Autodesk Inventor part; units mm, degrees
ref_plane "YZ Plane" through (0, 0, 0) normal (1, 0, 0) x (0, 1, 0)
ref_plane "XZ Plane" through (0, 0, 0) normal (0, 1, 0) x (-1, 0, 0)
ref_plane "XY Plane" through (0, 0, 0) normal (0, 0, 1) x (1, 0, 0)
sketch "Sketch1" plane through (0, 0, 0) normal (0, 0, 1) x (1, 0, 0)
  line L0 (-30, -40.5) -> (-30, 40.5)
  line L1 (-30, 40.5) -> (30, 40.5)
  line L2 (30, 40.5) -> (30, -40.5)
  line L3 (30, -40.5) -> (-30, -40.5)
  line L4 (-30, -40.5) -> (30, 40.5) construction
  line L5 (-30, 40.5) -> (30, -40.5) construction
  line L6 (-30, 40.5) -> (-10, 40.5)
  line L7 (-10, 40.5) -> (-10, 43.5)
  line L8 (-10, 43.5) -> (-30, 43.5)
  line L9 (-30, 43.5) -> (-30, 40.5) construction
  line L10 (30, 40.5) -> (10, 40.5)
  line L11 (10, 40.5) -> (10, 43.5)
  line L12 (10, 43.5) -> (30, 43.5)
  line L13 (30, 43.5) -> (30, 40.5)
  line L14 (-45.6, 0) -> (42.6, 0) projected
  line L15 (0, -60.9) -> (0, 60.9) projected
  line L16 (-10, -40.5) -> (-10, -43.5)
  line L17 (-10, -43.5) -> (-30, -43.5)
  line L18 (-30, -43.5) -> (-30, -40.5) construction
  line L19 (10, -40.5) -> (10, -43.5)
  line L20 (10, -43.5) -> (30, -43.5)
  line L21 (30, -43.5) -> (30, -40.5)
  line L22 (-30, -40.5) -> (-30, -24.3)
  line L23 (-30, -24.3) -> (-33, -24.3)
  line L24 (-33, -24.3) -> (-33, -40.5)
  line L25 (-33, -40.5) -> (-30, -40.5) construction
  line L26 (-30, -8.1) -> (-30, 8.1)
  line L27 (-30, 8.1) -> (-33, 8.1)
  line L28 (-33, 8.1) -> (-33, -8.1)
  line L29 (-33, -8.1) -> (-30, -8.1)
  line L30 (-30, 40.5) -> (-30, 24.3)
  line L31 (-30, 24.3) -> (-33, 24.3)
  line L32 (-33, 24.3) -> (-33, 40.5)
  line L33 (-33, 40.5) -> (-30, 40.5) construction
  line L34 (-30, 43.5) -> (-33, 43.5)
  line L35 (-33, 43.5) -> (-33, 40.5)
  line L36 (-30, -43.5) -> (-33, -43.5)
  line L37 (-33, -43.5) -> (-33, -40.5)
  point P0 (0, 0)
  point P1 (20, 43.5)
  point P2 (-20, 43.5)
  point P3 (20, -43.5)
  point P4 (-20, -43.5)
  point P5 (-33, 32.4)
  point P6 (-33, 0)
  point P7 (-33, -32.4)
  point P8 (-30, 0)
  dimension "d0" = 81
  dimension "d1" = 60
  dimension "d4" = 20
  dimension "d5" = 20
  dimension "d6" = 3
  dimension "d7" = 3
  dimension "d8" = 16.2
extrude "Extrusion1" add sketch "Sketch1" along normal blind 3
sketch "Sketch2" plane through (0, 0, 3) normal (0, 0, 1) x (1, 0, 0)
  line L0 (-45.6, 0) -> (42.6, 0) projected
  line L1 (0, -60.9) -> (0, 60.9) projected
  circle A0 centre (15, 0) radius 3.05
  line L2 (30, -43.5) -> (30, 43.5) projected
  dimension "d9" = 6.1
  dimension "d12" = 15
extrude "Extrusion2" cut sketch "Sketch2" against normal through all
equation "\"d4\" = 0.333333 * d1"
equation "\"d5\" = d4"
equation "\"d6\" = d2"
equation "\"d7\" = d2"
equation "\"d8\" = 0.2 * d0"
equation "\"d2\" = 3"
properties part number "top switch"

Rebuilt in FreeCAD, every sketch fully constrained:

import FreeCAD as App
import Part
import Sketcher

V = App.Vector


def add_polygon(sketch, points):
    """Adds a closed chain of lines whose ends are joined by coincident constraints."""
    first, n = sketch.GeometryCount, len(points)
    for a, b in zip(points, points[1:] + points[:1]):
        sketch.addGeometry(Part.LineSegment(App.Vector(*a, 0), App.Vector(*b, 0)), False)
    for i in range(n):
        sketch.addConstraint(Sketcher.Constraint("Coincident", first + i, 2, first + (i + 1) % n, 1))

doc = App.newDocument("Part")
body = doc.addObject("PartDesign::Body", "Body")

sketch1 = doc.addObject("Sketcher::SketchObject", "Sketch")
body.addObject(sketch1)
sketch1.AttachmentSupport = (doc.XY_Plane, [""])
sketch1.MapMode = "FlatFace"
add_polygon(sketch1, [(-10, -43.5), (-10, -40.5), (10, -40.5), (10, -43.5), (30, -43.5), (30, 43.5), (10, 43.5), (10, 40.5), (-10, 40.5), (-10, 43.5), (-33, 43.5), (-33, 24.3), (-30, 24.3), (-30, 8.1), (-33, 8.1), (-33, -8.1), (-30, -8.1), (-30, -24.3), (-33, -24.3), (-33, -43.5)])
sketch1.addConstraint([
    Sketcher.Constraint("Vertical", 0),
    Sketcher.Constraint("Horizontal", 1),
    Sketcher.Constraint("Vertical", 2),
    Sketcher.Constraint("Horizontal", 3),
    Sketcher.Constraint("Vertical", 4),
    Sketcher.Constraint("Horizontal", 5),
    Sketcher.Constraint("Vertical", 6),
    Sketcher.Constraint("Horizontal", 7),
    Sketcher.Constraint("Vertical", 8),
    Sketcher.Constraint("Horizontal", 9),
    Sketcher.Constraint("Vertical", 10),
    Sketcher.Constraint("Horizontal", 11),
    Sketcher.Constraint("Vertical", 12),
    Sketcher.Constraint("Horizontal", 13),
    Sketcher.Constraint("Vertical", 14),
    Sketcher.Constraint("Horizontal", 15),
    Sketcher.Constraint("Vertical", 16),
    Sketcher.Constraint("Horizontal", 17),
    Sketcher.Constraint("Vertical", 18),
    Sketcher.Constraint("Horizontal", 19),
    Sketcher.Constraint("Symmetric", 0, 2, 6, 2, -1, 1),
    Sketcher.Constraint("Symmetric", 2, 2, 8, 2, -1, 1),
    Sketcher.Constraint("Symmetric", 5, 2, 8, 2, -2),
    Sketcher.Constraint("Symmetric", 12, 2, 15, 2, -1),
    Sketcher.Constraint("Symmetric", 10, 2, 17, 2, -1),
    Sketcher.Constraint("Horizontal", 3, 2, 18, 2),
    Sketcher.Constraint("Vertical", 10, 2, 13, 2),
    Sketcher.Constraint("Equal", 1, 3),
    Sketcher.Constraint("Equal", 17, 0),
    Sketcher.Constraint("Equal", 12, 14),
    Sketcher.Constraint("DistanceX", 1, 1, 1, 2, 20.0),
    Sketcher.Constraint("DistanceX", 11, 1, 11, 2, 3.0),
    Sketcher.Constraint("DistanceY", 12, 2, 12, 1, 16.2),
    Sketcher.Constraint("DistanceY", 1, 2, 6, 2, 81.0),
    Sketcher.Constraint("DistanceX", 11, 2, 7, 2, 20.0),
])
pad1 = doc.addObject("PartDesign::Pad", "Pad")
body.addObject(pad1)
pad1.Profile = sketch1
pad1.Length = 3

sketch2 = doc.addObject("Sketcher::SketchObject", "Sketch001")
body.addObject(sketch2)
sketch2.AttachmentSupport = (doc.XY_Plane, [""])
sketch2.MapMode = "FlatFace"
sketch2.AttachmentOffset = App.Placement(V(0, 0, 3), App.Rotation())
sketch2.addGeometry(Part.Circle(V(15, 0, 0), V(0, 0, 1), 3), False)
sketch2.addConstraint([
    Sketcher.Constraint("PointOnObject", 0, 3, -1),
    Sketcher.Constraint("Diameter", 0, 6.1),
    Sketcher.Constraint("DistanceX", -1, 1, 0, 3, 15.0),
])
pocket1 = doc.addObject("PartDesign::Pocket", "Pocket")
body.addObject(pocket1)
pocket1.Profile = sketch2
pocket1.Type = "ThroughAll"

doc.recompute()
